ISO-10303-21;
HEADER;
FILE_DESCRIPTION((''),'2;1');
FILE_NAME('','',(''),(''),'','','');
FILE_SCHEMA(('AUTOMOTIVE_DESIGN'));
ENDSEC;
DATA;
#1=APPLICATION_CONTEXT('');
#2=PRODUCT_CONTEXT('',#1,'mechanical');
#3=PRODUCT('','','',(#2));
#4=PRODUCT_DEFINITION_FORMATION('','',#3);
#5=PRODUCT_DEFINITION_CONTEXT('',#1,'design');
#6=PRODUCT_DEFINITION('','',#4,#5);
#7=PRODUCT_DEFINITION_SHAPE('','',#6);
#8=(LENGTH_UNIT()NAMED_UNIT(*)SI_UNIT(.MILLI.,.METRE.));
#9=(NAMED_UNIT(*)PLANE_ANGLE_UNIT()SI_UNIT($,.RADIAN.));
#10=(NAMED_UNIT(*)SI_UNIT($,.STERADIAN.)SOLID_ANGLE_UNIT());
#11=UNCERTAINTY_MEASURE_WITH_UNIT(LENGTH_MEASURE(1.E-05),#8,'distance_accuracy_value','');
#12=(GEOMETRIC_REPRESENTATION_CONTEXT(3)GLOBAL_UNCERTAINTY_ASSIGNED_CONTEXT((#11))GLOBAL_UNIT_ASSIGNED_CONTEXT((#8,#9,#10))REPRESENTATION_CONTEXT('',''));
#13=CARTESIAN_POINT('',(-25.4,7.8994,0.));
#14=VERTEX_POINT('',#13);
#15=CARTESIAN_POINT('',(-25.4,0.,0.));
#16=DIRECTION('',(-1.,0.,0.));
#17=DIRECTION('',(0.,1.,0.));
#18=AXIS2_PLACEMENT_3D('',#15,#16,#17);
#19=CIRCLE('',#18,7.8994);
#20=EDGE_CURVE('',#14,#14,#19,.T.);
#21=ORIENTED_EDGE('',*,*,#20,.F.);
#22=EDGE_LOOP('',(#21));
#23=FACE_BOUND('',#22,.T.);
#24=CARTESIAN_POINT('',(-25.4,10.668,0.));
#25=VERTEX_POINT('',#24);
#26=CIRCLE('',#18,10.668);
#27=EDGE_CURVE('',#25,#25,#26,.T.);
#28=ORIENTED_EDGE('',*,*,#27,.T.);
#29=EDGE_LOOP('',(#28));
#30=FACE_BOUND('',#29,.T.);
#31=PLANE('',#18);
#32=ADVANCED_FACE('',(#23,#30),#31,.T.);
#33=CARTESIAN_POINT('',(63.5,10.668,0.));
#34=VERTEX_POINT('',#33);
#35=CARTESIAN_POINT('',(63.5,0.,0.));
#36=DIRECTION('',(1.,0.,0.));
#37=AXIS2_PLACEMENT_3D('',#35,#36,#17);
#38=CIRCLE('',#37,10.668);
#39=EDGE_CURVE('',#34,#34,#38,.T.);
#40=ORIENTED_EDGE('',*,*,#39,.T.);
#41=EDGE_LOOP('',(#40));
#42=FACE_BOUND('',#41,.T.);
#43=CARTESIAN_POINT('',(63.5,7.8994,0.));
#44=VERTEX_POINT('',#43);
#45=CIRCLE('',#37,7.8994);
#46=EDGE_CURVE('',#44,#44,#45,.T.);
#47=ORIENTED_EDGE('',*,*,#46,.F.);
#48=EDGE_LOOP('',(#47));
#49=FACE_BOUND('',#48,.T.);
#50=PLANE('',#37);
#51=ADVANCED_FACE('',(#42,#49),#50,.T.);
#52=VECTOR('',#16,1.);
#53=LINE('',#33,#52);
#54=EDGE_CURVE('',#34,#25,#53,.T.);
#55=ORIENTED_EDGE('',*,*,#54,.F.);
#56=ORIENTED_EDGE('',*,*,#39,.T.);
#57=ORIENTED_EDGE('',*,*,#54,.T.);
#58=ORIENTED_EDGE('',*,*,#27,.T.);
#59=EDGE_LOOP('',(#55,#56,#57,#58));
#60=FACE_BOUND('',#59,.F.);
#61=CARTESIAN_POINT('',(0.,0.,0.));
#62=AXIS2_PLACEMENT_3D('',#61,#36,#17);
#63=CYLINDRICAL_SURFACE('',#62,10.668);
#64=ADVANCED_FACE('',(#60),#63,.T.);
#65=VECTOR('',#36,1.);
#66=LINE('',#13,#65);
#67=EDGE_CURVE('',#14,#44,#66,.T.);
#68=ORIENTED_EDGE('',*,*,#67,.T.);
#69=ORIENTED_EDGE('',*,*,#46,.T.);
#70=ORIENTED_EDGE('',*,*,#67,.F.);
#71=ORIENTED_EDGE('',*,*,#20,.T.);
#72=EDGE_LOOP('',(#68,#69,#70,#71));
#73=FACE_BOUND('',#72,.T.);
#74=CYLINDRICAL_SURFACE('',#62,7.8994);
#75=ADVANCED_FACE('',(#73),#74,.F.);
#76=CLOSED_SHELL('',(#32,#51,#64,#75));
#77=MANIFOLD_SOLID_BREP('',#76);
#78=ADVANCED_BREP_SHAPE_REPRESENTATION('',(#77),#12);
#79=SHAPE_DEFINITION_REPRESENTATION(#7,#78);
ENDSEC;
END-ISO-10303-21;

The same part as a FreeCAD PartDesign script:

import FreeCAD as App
import Part
import Sketcher
Q = App.Units.Quantity

doc = App.newDocument("Part")
body = doc.addObject("PartDesign::Body", "Body")

# Sketch on YZ plane
sketch1 = body.newObject("Sketcher::SketchObject", "Sketch")
sketch1.AttachmentSupport = (doc.getObject("YZ_Plane"), [""])
sketch1.MapMode = "FlatFace"
sketch1.addGeometry(Part.Circle(App.Vector(0, 0, 0), App.Vector(0, 0, 1), 11), False)
sketch1.addGeometry(Part.Circle(App.Vector(0, 0, 0), App.Vector(0, 0, 1), 8), False)
sketch1.addConstraint(Sketcher.Constraint("Coincident", 0, 3, -1, 1))
sketch1.addConstraint(Sketcher.Constraint("Coincident", 1, 3, -1, 1))
sketch1.addConstraint(Sketcher.Constraint("Diameter", 0, Q("0.84 in")))
sketch1.addConstraint(Sketcher.Constraint("Diameter", 1, Q("0.622 in")))
pad1 = body.newObject("PartDesign::Pad", "Pad")
pad1.Profile = sketch1
pad1.Length = Q("2.5 in")

# Sketch on YZ plane
sketch2 = body.newObject("Sketcher::SketchObject", "Sketch001")
sketch2.AttachmentSupport = (doc.getObject("YZ_Plane"), [""])
sketch2.MapMode = "FlatFace"
sketch2.addGeometry(Part.Circle(App.Vector(0, 0, 0), App.Vector(0, 0, 1), 11), False)
sketch2.addGeometry(Part.Circle(App.Vector(0, 0, 0), App.Vector(0, 0, 1), 8), False)
sketch2.addConstraint(Sketcher.Constraint("Coincident", 0, 3, -1, 1))
sketch2.addConstraint(Sketcher.Constraint("Coincident", 1, 3, -1, 1))
sketch2.addConstraint(Sketcher.Constraint("Diameter", 0, Q("0.84 in")))
sketch2.addConstraint(Sketcher.Constraint("Diameter", 1, Q("0.622 in")))
pad2 = body.newObject("PartDesign::Pad", "Pad001")
pad2.Profile = sketch2
pad2.Length = Q("1 in")
pad2.Reversed = True

doc.recompute()
